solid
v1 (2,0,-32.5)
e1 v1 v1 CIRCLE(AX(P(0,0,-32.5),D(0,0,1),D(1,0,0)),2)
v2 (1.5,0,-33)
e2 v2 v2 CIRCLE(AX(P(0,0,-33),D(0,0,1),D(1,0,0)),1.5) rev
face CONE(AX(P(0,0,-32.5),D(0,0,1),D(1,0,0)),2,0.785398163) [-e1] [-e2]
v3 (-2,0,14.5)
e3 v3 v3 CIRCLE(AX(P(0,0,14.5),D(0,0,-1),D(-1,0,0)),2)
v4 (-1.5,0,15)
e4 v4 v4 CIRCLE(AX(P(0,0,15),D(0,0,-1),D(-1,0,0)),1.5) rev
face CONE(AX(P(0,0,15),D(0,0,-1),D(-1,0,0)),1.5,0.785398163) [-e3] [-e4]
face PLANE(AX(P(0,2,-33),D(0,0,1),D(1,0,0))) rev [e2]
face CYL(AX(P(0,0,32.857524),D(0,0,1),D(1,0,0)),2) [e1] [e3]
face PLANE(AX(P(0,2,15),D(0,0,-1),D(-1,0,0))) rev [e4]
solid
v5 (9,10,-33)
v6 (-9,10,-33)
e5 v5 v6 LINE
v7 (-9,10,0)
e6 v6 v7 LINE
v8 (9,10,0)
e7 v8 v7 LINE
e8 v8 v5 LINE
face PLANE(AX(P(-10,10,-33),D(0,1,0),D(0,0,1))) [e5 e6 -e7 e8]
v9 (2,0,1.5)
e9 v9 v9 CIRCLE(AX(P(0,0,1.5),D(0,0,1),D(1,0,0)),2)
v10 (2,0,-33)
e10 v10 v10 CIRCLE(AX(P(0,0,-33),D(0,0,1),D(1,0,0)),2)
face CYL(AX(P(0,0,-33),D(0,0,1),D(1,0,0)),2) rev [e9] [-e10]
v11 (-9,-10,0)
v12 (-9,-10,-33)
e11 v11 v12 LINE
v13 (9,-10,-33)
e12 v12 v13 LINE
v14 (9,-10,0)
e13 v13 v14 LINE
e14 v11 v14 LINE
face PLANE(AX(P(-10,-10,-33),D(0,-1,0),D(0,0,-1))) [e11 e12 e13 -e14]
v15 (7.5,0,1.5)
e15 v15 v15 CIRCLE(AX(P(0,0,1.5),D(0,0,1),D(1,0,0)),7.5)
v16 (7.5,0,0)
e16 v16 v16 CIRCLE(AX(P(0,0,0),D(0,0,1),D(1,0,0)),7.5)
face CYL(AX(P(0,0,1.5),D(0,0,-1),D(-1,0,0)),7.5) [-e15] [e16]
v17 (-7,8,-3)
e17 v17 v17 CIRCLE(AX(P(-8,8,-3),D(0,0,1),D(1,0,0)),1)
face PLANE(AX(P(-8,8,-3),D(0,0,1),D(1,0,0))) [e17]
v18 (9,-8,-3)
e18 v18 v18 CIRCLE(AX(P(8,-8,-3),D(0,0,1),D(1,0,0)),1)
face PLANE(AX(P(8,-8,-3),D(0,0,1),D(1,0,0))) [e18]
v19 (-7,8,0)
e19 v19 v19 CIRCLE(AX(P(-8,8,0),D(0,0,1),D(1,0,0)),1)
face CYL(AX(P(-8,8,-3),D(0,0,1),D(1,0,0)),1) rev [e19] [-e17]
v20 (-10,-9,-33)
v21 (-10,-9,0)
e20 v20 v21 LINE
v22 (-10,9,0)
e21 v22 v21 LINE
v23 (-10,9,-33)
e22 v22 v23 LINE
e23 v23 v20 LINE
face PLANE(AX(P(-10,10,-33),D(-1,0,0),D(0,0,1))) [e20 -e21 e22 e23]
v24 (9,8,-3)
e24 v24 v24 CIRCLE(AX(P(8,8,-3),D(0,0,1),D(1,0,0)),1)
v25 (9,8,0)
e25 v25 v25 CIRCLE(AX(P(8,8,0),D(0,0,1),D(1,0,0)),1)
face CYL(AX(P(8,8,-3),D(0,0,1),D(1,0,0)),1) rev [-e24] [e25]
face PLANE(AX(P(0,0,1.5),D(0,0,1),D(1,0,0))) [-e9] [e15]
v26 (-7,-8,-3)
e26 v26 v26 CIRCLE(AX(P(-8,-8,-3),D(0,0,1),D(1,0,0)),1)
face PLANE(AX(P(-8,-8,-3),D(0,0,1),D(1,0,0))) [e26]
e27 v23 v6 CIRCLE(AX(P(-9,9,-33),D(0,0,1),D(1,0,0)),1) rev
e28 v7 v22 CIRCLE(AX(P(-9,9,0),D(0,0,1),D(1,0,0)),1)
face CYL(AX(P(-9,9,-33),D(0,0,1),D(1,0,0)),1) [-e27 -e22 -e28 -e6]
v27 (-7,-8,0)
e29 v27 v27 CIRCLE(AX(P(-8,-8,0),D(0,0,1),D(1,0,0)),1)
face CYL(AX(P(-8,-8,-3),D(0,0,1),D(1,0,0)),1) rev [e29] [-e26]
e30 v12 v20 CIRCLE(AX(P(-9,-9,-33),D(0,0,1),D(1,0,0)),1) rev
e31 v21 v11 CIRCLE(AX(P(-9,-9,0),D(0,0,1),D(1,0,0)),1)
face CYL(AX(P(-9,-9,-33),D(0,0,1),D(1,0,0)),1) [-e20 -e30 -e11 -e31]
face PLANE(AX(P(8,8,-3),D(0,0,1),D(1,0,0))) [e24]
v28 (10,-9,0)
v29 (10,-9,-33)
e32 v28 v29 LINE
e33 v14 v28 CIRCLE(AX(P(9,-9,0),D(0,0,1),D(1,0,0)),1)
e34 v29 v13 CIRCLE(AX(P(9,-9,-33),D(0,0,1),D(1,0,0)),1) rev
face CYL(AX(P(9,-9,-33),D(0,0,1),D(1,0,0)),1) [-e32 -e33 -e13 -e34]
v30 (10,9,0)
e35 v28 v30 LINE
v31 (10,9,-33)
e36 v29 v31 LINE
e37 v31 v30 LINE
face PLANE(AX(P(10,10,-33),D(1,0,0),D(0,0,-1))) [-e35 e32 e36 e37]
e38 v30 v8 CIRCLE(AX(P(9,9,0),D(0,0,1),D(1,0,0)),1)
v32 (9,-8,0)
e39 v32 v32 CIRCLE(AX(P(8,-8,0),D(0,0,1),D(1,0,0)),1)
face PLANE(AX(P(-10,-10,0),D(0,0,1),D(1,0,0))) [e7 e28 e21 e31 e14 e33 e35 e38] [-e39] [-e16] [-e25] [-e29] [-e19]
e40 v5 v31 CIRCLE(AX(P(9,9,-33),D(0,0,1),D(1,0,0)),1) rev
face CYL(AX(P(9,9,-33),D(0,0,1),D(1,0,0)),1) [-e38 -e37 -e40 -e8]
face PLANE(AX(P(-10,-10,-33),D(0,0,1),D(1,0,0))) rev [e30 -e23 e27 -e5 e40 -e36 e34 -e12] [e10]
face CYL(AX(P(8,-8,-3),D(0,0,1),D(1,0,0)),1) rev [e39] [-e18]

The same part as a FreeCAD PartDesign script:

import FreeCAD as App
import Part
import Sketcher
from FreeCAD import Vector
Q = App.Units.Quantity


def edges_at(feature, points):
    """Names of the edges that pass closest to the given points."""
    edges = feature.Shape.Edges
    near = lambda p: min(range(len(edges)), key=lambda i: edges[i].distToShape(Part.Vertex(*p))[0])
    return sorted({f"Edge{near(p) + 1}" for p in points})

doc = App.newDocument("Part")
body = doc.addObject("PartDesign::Body", "Body")

# Sketch on XY plane
sketch1 = body.newObject("Sketcher::SketchObject", "Sketch")
sketch1.AttachmentSupport = (doc.getObject("XY_Plane"), [""])
sketch1.MapMode = "FlatFace"
sketch1.addGeometry([
    Part.LineSegment(Vector(-10, 10, 0), Vector(-10, -10, 0)),
    Part.LineSegment(Vector(-10, -10, 0), Vector(10, -10, 0)),
    Part.LineSegment(Vector(10, -10, 0), Vector(10, 10, 0)),
    Part.LineSegment(Vector(10, 10, 0), Vector(-10, 10, 0)),
], False)
sketch1.addConstraint([
    Sketcher.Constraint("Coincident", 0, 2, 1, 1),
    Sketcher.Constraint("Coincident", 1, 2, 2, 1),
    Sketcher.Constraint("Coincident", 2, 2, 3, 1),
    Sketcher.Constraint("Coincident", 3, 2, 0, 1),
    Sketcher.Constraint("Vertical", 0),
    Sketcher.Constraint("Horizontal", 1),
    Sketcher.Constraint("Vertical", 2),
    Sketcher.Constraint("Horizontal", 3),
    Sketcher.Constraint("Symmetric", 0, 2, 2, 2, -1, 1),
    Sketcher.Constraint("Equal", 3, 0),
    Sketcher.Constraint("DistanceX", 1, 1, 1, 2, Q("20 mm")),
])
pad1 = body.newObject("PartDesign::Pad", "Pad")
pad1.Profile = sketch1
pad1.Length = 33
pad1.Reversed = True

# Sketch on XY plane
sketch2 = body.newObject("Sketcher::SketchObject", "Sketch001")
sketch2.AttachmentSupport = (doc.getObject("XY_Plane"), [""])
sketch2.MapMode = "FlatFace"
sketch2.addGeometry(Part.Circle(Vector(0, 0, 0), Vector(0, 0, 1), 7.5), False)
sketch2.addConstraint([
    Sketcher.Constraint("Coincident", 0, 3, -1, 1),
    Sketcher.Constraint("Diameter", 0, Q("15 mm")),
])
pad2 = body.newObject("PartDesign::Pad", "Pad001")
pad2.Profile = sketch2
pad2.Length = 1.5

# Sketch on XY plane
sketch3 = body.newObject("Sketcher::SketchObject", "Sketch002")
sketch3.AttachmentSupport = (doc.getObject("XY_Plane"), [""])
sketch3.MapMode = "FlatFace"
sketch3.AttachmentOffset = App.Placement(Vector(0, 0, 1.5), App.Rotation())
sketch3.addGeometry(Part.Circle(Vector(0, 0, 0), Vector(0, 0, 1), 2), False)
sketch3.addConstraint([
    Sketcher.Constraint("Coincident", 0, 3, -1, 1),
    Sketcher.Constraint("Diameter", 0, Q("4 mm")),
])
pocket1 = body.newObject("PartDesign::Pocket", "Pocket")
pocket1.Profile = sketch3
pocket1.Type = "ThroughAll"
doc.recompute()

fillet = body.newObject("PartDesign::Fillet", "Fillet")
fillet.Base = (pocket1, edges_at(pocket1, [
    (-10, 10, -16.5),
    (10, 10, -16.5),
    (10, -10, -16.5),
    (-10, -10, -16.5),
]))
fillet.Radius = 1

# Sketch on XY plane
sketch4 = body.newObject("Sketcher::SketchObject", "Sketch003")
sketch4.AttachmentSupport = (doc.getObject("XY_Plane"), [""])
sketch4.MapMode = "FlatFace"
sketch4.addGeometry([
    Part.Circle(Vector(8, 8, 0), Vector(0, 0, 1), 1),
    Part.Circle(Vector(-8, 8, 0), Vector(0, 0, 1), 1),
    Part.Circle(Vector(-8, -8, 0), Vector(0, 0, 1), 1),
    Part.Circle(Vector(8, -8, 0), Vector(0, 0, 1), 1),
], False)
sketch4.addConstraint([
    Sketcher.Constraint("Equal", 0, 1),
    Sketcher.Constraint("Equal", 1, 2),
    Sketcher.Constraint("Equal", 2, 3),
    Sketcher.Constraint("Symmetric", 0, 3, 2, 3, -1, 1),
    Sketcher.Constraint("Symmetric", 1, 3, 3, 3, -1, 1),
    Sketcher.Constraint("Symmetric", 0, 3, 1, 3, -2),
    Sketcher.Constraint("Diameter", 0, Q("2 mm")),
    Sketcher.Constraint("DistanceX", -1, 1, 0, 3, Q("8 mm")),
    Sketcher.Constraint("DistanceY", -1, 1, 0, 3, Q("8 mm")),
])
pocket2 = body.newObject("PartDesign::Pocket", "Pocket001")
pocket2.Profile = sketch4
pocket2.Length = 3
body2 = doc.addObject("PartDesign::Body", "Body001")

# Sketch on YZ plane
sketch5 = body2.newObject("Sketcher::SketchObject", "Sketch004")
sketch5.AttachmentSupport = (doc.getObject("YZ_Plane001"), [""])
sketch5.MapMode = "FlatFace"
sketch5.addGeometry([
    Part.LineSegment(Vector(2, 15, 0), Vector(0, 15, 0)),
    Part.LineSegment(Vector(0, 15, 0), Vector(0, -33, 0)),
    Part.LineSegment(Vector(0, -33, 0), Vector(2, -33, 0)),
    Part.LineSegment(Vector(2, -33, 0), Vector(2, 15, 0)),
], False)
sketch5.addConstraint([
    Sketcher.Constraint("Coincident", 0, 2, 1, 1),
    Sketcher.Constraint("Coincident", 1, 2, 2, 1),
    Sketcher.Constraint("Coincident", 2, 2, 3, 1),
    Sketcher.Constraint("Coincident", 3, 2, 0, 1),
    Sketcher.Constraint("Horizontal", 0),
    Sketcher.Constraint("Vertical", 1),
    Sketcher.Constraint("Horizontal", 2),
    Sketcher.Constraint("Vertical", 3),
    Sketcher.Constraint("PointOnObject", 0, 2, -2),
    Sketcher.Constraint("DistanceX", 0, 2, 0, 1, Q("2 mm")),
    Sketcher.Constraint("DistanceY", 1, 2, 1, 1, Q("48 mm")),
    Sketcher.Constraint("DistanceY", -1, 1, 0, 2, Q("15 mm")),
])
revolution = body2.newObject("PartDesign::Revolution", "Revolution")
revolution.Profile = sketch5
revolution.ReferenceAxis = (sketch5, ["V_Axis"])
revolution.Angle = 360
doc.recompute()

chamfer = body2.newObject("PartDesign::Chamfer", "Chamfer")
chamfer.Base = (revolution, edges_at(revolution, [(0, -2, 15), (0, -2, -33)]))
chamfer.Size = 0.5

doc.recompute()
